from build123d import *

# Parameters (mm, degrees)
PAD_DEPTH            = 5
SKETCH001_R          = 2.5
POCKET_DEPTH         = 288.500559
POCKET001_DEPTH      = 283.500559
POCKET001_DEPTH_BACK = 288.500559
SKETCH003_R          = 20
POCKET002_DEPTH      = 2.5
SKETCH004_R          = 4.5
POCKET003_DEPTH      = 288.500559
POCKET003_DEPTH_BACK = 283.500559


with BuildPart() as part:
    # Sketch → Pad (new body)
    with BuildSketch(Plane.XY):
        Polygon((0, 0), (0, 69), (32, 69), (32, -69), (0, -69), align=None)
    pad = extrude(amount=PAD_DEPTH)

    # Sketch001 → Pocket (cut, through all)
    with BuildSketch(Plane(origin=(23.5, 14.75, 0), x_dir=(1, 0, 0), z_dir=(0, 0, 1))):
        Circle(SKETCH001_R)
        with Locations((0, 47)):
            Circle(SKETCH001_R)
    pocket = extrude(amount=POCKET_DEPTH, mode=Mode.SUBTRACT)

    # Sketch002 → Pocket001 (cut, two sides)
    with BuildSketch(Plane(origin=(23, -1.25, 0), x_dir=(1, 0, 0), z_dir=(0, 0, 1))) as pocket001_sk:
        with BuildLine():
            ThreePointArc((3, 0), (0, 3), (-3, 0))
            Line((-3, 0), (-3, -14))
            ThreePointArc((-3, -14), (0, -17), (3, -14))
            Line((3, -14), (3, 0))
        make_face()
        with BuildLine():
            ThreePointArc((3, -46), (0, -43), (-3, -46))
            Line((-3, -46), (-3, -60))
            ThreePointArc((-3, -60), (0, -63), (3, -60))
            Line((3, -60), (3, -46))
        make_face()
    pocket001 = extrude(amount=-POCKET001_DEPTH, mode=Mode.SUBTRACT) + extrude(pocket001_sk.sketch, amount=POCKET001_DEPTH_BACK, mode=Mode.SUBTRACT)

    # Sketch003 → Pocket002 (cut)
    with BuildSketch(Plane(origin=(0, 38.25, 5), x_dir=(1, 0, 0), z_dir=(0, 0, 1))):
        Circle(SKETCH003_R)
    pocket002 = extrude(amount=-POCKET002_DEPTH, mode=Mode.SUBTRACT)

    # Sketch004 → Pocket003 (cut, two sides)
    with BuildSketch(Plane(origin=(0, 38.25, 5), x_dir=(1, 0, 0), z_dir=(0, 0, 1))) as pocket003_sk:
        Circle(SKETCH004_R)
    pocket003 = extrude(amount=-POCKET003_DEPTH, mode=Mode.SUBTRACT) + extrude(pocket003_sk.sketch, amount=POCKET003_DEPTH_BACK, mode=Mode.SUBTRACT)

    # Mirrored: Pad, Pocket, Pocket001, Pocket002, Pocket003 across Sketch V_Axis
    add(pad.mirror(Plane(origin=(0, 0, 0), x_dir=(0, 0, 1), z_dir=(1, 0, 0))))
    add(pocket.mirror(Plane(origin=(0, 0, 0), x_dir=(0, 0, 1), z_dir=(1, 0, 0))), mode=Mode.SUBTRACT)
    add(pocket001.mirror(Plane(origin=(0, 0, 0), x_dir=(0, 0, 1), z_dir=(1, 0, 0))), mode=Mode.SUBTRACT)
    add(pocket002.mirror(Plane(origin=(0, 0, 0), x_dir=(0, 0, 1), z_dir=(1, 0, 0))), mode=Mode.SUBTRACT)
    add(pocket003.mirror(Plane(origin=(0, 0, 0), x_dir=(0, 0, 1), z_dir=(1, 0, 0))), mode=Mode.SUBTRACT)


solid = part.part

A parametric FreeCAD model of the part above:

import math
import FreeCAD as App
import Part
import Sketcher

V = App.Vector

doc = App.newDocument("Part")
params = doc.addObject("Spreadsheet::Sheet", "Params")
for row, (alias, value) in enumerate([
    ("sketch1_width", "32 mm"),
    ("sketch1_height", "138 mm"),
    ("pad1_length", "5 mm"),
    ("sketch2_diameter", "5 mm"),
    ("sketch3_radius", "3 mm"),
    ("sketch3_height", "14 mm"),
    ("sketch4_diameter", "40 mm"),
    ("pocket3_length", "2.5 mm"),
    ("sketch5_diameter", "9 mm"),
], start=1):
    params.set(f"A{row}", alias)
    params.set(f"B{row}", "=" + value)
    params.setAlias(f"B{row}", alias)

body = doc.addObject("PartDesign::Body", "Body")

# Sketch on XY plane
sketch1 = body.newObject("Sketcher::SketchObject", "Sketch")
sketch1.AttachmentSupport = (doc.getObject("XY_Plane"), [""])
sketch1.MapMode = "FlatFace"
sketch1.addGeometry([
    Part.LineSegment(V(0, 69, 0), V(0, -69, 0)),
    Part.LineSegment(V(0, -69, 0), V(32, -69, 0)),
    Part.LineSegment(V(32, -69, 0), V(32, 69, 0)),
    Part.LineSegment(V(32, 69, 0), V(0, 69, 0)),
], False)
sketch1.addConstraint([
    Sketcher.Constraint("Coincident", 0, 2, 1, 1),
    Sketcher.Constraint("Coincident", 1, 2, 2, 1),
    Sketcher.Constraint("Coincident", 2, 2, 3, 1),
    Sketcher.Constraint("Coincident", 3, 2, 0, 1),
    Sketcher.Constraint("Vertical", 0),
    Sketcher.Constraint("Horizontal", 1),
    Sketcher.Constraint("Vertical", 2),
    Sketcher.Constraint("Horizontal", 3),
    Sketcher.Constraint("Symmetric", 0, 2, 3, 2, -1, 1),
    Sketcher.Constraint("DistanceX", 1, 1, 1, 2, 32.0),
    Sketcher.Constraint("DistanceY", 0, 2, 0, 1, 138.0),
])
sketch1.setExpression("Constraints[9]", "Params.sketch1_width")
sketch1.setExpression("Constraints[10]", "Params.sketch1_height")
pad1 = body.newObject("PartDesign::Pad", "Pad")
pad1.Profile = sketch1
pad1.setExpression("Length", "Params.pad1_length")

# Sketch on XY plane
sketch2 = body.newObject("Sketcher::SketchObject", "Sketch001")
sketch2.AttachmentSupport = (doc.getObject("XY_Plane"), [""])
sketch2.MapMode = "FlatFace"
sketch2.addGeometry([
    Part.Circle(V(23.5, 14.8, 0), V(0, 0, 1), 2.5),
    Part.Circle(V(23.5, 61.8, 0), V(0, 0, 1), 2.5),
], False)
sketch2.addConstraint([
    Sketcher.Constraint("Equal", 0, 1),
    Sketcher.Constraint("Vertical", 0, 3, 1, 3),
    Sketcher.Constraint("Diameter", 0, 5.0),
    Sketcher.Constraint("DistanceY", 0, 3, 1, 3, 47.0),
    Sketcher.Constraint("DistanceX", -1, 1, 0, 3, 23.5),
    Sketcher.Constraint("DistanceY", -1, 1, 0, 3, 14.75),
])
sketch2.setExpression("Constraints[2]", "Params.sketch2_diameter")
pocket1 = body.newObject("PartDesign::Pocket", "Pocket")
pocket1.Profile = sketch2
pocket1.Type = "ThroughAll"
pocket1.Reversed = True

# Sketch on XY plane
sketch3 = body.newObject("Sketcher::SketchObject", "Sketch002")
sketch3.AttachmentSupport = (doc.getObject("XY_Plane"), [""])
sketch3.MapMode = "FlatFace"
sketch3.addGeometry([
    Part.ArcOfCircle(Part.Circle(V(23, -1.2, 0), V(0, 0, 1), 3), math.radians(0), math.radians(180)),  # 0
    Part.LineSegment(V(20, -1.2, 0), V(20, -15.2, 0)),  # 1
    Part.ArcOfCircle(Part.Circle(V(23, -15.2, 0), V(0, 0, 1), 3), math.radians(180), math.radians(360)),  # 2
    Part.LineSegment(V(26, -15.2, 0), V(26, -1.2, 0)),  # 3
    Part.ArcOfCircle(Part.Circle(V(23, -47.2, 0), V(0, 0, 1), 3), math.radians(0), math.radians(180)),  # 4
    Part.LineSegment(V(20, -47.2, 0), V(20, -61.2, 0)),  # 5
    Part.ArcOfCircle(Part.Circle(V(23, -61.2, 0), V(0, 0, 1), 3), math.radians(180), math.radians(360)),  # 6
    Part.LineSegment(V(26, -61.2, 0), V(26, -47.2, 0)),  # 7
], False)
sketch3.addConstraint([
    Sketcher.Constraint("Tangent", 0, 2, 1, 1),
    Sketcher.Constraint("Tangent", 1, 2, 2, 1),
    Sketcher.Constraint("Tangent", 2, 2, 3, 1),
    Sketcher.Constraint("Tangent", 3, 2, 0, 1),
    Sketcher.Constraint("Tangent", 4, 2, 5, 1),
    Sketcher.Constraint("Tangent", 5, 2, 6, 1),
    Sketcher.Constraint("Tangent", 6, 2, 7, 1),
    Sketcher.Constraint("Tangent", 7, 2, 4, 1),
    Sketcher.Constraint("Vertical", 1),
    Sketcher.Constraint("Vertical", 3),
    Sketcher.Constraint("Vertical", 5),
    Sketcher.Constraint("Vertical", 7),
    Sketcher.Constraint("Equal", 2, 4),
    Sketcher.Constraint("Vertical", 2, 3, 4, 3),
    Sketcher.Constraint("Equal", 3, 5),
    Sketcher.Constraint("Radius", 0, 3.0),
    Sketcher.Constraint("DistanceY", 1, 2, 1, 1, 14.0),
    Sketcher.Constraint("DistanceX", -1, 1, 0, 3, 23.0),
    Sketcher.Constraint("DistanceY", 4, 3, 2, 3, 32.0),
    Sketcher.Constraint("DistanceY", 0, 3, -1, 1, 1.25),
])
sketch3.setExpression("Constraints[15]", "Params.sketch3_radius")
sketch3.setExpression("Constraints[16]", "Params.sketch3_height")
pocket2 = body.newObject("PartDesign::Pocket", "Pocket001")
pocket2.Profile = sketch3
pocket2.Type = "ThroughAll"
pocket2.Midplane = True

# Sketch on XY plane
sketch4 = body.newObject("Sketcher::SketchObject", "Sketch003")
sketch4.AttachmentSupport = (doc.getObject("XY_Plane"), [""])
sketch4.MapMode = "FlatFace"
sketch4.AttachmentOffset = App.Placement(V(0, 0, 5), App.Rotation())
sketch4.addGeometry(Part.Circle(V(0, 38, 0), V(0, 0, 1), 20), False)
sketch4.addConstraint([
    Sketcher.Constraint("PointOnObject", 0, 3, -2),
    Sketcher.Constraint("Diameter", 0, 40.0),
    Sketcher.Constraint("DistanceY", -1, 1, 0, 3, 38.25),
])
sketch4.setExpression("Constraints[1]", "Params.sketch4_diameter")
pocket3 = body.newObject("PartDesign::Pocket", "Pocket002")
pocket3.Profile = sketch4
pocket3.setExpression("Length", "Params.pocket3_length")

# Sketch on XY plane
sketch5 = body.newObject("Sketcher::SketchObject", "Sketch004")
sketch5.AttachmentSupport = (doc.getObject("XY_Plane"), [""])
sketch5.MapMode = "FlatFace"
sketch5.AttachmentOffset = App.Placement(V(0, 0, 5), App.Rotation())
sketch5.addGeometry(Part.Circle(V(0, 38.2, 0), V(0, 0, 1), 4.5), False)
sketch5.addConstraint([
    Sketcher.Constraint("PointOnObject", 0, 3, -2),
    Sketcher.Constraint("Diameter", 0, 9.0),
    Sketcher.Constraint("DistanceY", -1, 1, 0, 3, 38.25),
])
sketch5.setExpression("Constraints[1]", "Params.sketch5_diameter")
pocket4 = body.newObject("PartDesign::Pocket", "Pocket003")
pocket4.Profile = sketch5
pocket4.Type = "ThroughAll"
pocket4.Midplane = True
doc.recompute()

mirrored = body.newObject("PartDesign::Mirrored", "Mirrored")
mirrored.Originals = [pad1, pocket1, pocket2, pocket3, pocket4]
mirrored.MirrorPlane = (doc.getObject("YZ_Plane"), [""])
body.Tip = mirrored

doc.recompute()
